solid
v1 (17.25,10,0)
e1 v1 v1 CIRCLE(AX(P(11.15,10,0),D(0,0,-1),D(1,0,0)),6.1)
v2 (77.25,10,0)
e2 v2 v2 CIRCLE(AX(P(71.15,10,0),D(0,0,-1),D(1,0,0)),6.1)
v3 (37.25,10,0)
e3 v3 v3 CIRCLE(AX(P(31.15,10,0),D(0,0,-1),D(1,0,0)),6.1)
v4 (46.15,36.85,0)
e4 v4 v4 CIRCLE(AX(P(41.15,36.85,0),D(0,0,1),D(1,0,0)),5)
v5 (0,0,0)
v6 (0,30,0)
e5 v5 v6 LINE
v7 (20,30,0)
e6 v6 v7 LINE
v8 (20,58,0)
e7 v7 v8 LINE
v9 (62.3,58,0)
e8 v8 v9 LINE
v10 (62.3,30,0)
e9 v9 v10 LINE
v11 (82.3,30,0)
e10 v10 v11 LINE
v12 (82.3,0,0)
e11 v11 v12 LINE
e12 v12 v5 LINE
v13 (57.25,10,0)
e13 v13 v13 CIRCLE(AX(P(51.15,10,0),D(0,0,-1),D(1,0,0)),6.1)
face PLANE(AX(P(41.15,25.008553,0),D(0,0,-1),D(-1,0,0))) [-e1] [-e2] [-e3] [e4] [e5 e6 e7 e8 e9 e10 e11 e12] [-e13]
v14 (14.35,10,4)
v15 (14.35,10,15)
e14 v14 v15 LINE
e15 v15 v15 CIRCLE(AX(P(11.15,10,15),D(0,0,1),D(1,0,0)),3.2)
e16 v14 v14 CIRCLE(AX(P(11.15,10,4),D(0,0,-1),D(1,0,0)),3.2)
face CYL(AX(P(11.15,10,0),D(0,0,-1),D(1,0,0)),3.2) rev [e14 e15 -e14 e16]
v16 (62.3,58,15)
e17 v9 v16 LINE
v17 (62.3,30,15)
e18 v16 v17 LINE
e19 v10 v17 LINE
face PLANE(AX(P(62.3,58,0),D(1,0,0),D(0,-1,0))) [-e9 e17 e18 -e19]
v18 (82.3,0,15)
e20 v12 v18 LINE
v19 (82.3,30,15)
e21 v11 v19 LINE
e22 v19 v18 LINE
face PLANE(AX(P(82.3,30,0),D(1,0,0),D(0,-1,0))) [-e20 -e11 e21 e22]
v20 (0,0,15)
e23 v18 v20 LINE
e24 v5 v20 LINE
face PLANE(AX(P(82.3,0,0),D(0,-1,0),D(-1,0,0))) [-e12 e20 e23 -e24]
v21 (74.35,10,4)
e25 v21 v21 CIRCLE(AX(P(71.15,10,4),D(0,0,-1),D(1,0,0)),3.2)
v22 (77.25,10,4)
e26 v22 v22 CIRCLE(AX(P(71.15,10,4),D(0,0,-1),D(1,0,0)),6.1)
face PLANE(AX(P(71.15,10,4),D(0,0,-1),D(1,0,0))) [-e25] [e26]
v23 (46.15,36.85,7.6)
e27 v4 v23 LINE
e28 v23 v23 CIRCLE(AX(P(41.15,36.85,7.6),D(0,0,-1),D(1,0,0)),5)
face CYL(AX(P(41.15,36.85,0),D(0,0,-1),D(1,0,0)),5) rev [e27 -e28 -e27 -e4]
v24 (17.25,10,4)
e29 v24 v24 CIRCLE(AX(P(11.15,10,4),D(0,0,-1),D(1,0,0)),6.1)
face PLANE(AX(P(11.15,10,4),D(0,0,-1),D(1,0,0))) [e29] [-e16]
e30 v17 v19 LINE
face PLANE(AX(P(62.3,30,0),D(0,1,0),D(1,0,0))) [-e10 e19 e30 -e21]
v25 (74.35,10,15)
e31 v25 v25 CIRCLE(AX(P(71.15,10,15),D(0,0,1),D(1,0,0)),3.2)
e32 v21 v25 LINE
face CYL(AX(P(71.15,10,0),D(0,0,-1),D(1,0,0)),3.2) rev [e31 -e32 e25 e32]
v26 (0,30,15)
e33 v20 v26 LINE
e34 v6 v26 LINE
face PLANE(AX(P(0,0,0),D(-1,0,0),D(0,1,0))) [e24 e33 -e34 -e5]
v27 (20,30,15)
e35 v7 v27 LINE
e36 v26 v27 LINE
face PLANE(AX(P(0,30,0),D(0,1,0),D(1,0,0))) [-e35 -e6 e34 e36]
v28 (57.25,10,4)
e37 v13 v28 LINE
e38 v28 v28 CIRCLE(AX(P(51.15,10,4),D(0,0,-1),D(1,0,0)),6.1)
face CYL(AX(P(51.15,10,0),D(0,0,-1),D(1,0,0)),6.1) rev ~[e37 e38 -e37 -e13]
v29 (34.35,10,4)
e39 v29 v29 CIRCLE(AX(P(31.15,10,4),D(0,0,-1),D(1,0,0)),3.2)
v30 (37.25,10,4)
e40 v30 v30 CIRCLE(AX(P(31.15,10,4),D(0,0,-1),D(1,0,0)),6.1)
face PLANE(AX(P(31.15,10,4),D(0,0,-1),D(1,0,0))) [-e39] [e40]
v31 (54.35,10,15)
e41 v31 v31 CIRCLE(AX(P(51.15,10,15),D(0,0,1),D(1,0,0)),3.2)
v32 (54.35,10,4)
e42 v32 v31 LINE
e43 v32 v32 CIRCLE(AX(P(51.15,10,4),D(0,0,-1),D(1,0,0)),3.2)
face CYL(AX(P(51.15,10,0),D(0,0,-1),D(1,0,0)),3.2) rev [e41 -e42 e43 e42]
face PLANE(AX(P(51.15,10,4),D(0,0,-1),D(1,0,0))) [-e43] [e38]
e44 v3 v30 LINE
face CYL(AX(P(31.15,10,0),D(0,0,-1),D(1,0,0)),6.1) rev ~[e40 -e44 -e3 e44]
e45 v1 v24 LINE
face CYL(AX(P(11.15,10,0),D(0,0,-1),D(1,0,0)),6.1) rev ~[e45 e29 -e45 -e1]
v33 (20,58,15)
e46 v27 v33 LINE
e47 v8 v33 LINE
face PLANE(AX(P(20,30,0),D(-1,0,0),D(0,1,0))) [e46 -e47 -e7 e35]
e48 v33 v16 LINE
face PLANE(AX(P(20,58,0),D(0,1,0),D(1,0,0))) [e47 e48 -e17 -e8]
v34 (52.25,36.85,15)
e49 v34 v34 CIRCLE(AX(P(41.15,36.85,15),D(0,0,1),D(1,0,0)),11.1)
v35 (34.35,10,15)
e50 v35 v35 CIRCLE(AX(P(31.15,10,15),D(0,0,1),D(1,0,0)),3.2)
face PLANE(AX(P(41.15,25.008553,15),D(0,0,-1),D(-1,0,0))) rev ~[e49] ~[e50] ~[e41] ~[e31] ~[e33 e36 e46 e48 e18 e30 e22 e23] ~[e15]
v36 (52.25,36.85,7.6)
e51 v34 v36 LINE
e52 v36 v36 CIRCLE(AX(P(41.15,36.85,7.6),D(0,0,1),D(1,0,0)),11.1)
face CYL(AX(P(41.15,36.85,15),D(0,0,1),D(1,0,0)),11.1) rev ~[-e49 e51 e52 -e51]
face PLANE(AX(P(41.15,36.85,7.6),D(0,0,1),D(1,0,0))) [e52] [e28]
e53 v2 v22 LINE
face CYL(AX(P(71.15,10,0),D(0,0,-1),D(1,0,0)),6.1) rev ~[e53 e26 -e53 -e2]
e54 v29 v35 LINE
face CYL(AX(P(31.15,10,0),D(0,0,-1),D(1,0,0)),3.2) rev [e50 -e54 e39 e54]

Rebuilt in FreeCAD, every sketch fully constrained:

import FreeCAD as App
import Part
import Sketcher
from FreeCAD import Vector
Q = App.Units.Quantity

doc = App.newDocument("Part")
params = doc.addObject("Spreadsheet::Sheet", "Params")
for row, (alias, value) in enumerate([
    ("sketch1_diameter", "10 mm"),
    ("sketch1_diameter2", "6.4 mm"),
    ("sketch1_width", "20 mm"),
    ("sketch1_height", "28 mm"),
    ("sketch1_height2", "30 mm"),
    ("pad1_length", "15 mm"),
    ("sketch2_diameter", "12.2 mm"),
    ("pocket1_length", "4 mm"),
    ("sketch3_diameter", "22.2 mm"),
    ("pocket2_length", "7.4 mm"),
], start=1):
    params.set(f"A{row}", alias)
    params.set(f"B{row}", "=" + value)
    params.setAlias(f"B{row}", alias)

body = doc.addObject("PartDesign::Body", "Body")

sketch1 = doc.addObject("Sketcher::SketchObject", "Sketch")
body.addObject(sketch1)
sketch1.AttachmentSupport = (doc.XY_Plane, [""])
sketch1.MapMode = "FlatFace"
sketch1.addGeometry(Part.LineSegment(Vector(20, 58, 0), Vector(20, 30, 0)), False)
sketch1.addGeometry(Part.LineSegment(Vector(20, 30, 0), Vector(0, 30, 0)), False)
sketch1.addGeometry(Part.LineSegment(Vector(0, 30, 0), Vector(0, 0, 0)), False)
sketch1.addGeometry(Part.LineSegment(Vector(0, 0, 0), Vector(82.3, 0, 0)), False)
sketch1.addGeometry(Part.LineSegment(Vector(82.3, 0, 0), Vector(82.3, 30, 0)), False)
sketch1.addGeometry(Part.LineSegment(Vector(82.3, 30, 0), Vector(62.3, 30, 0)), False)
sketch1.addGeometry(Part.LineSegment(Vector(62.3, 30, 0), Vector(62.3, 58, 0)), False)
sketch1.addGeometry(Part.LineSegment(Vector(62.3, 58, 0), Vector(20, 58, 0)), False)
sketch1.addGeometry(Part.Circle(Vector(71.2, 10, 0), Vector(0, 0, 1), 3.2), False)
sketch1.addGeometry(Part.Circle(Vector(51.1, 10, 0), Vector(0, 0, 1), 3.2), False)
sketch1.addGeometry(Part.Circle(Vector(31.1, 10, 0), Vector(0, 0, 1), 3.2), False)
sketch1.addGeometry(Part.Circle(Vector(11.2, 10, 0), Vector(0, 0, 1), 3.2), False)
sketch1.addGeometry(Part.Circle(Vector(41.1, 36.9, 0), Vector(0, 0, 1), 5), False)
sketch1.addConstraint(Sketcher.Constraint("Coincident", 0, 2, 1, 1))
sketch1.addConstraint(Sketcher.Constraint("Coincident", 1, 2, 2, 1))
sketch1.addConstraint(Sketcher.Constraint("Coincident", 2, 2, 3, 1))
sketch1.addConstraint(Sketcher.Constraint("Coincident", 3, 2, 4, 1))
sketch1.addConstraint(Sketcher.Constraint("Coincident", 4, 2, 5, 1))
sketch1.addConstraint(Sketcher.Constraint("Coincident", 5, 2, 6, 1))
sketch1.addConstraint(Sketcher.Constraint("Coincident", 6, 2, 7, 1))
sketch1.addConstraint(Sketcher.Constraint("Coincident", 7, 2, 0, 1))
sketch1.addConstraint(Sketcher.Constraint("Vertical", 0))
sketch1.addConstraint(Sketcher.Constraint("Horizontal", 1))
sketch1.addConstraint(Sketcher.Constraint("Vertical", 2))
sketch1.addConstraint(Sketcher.Constraint("Horizontal", 3))
sketch1.addConstraint(Sketcher.Constraint("Vertical", 4))
sketch1.addConstraint(Sketcher.Constraint("Horizontal", 5))
sketch1.addConstraint(Sketcher.Constraint("Vertical", 6))
sketch1.addConstraint(Sketcher.Constraint("Horizontal", 7))
sketch1.addConstraint(Sketcher.Constraint("Coincident", 2, 2, -1, 1))
sketch1.addConstraint(Sketcher.Constraint("Equal", 8, 9))
sketch1.addConstraint(Sketcher.Constraint("Equal", 9, 10))
sketch1.addConstraint(Sketcher.Constraint("Equal", 10, 11))
sketch1.addConstraint(Sketcher.Constraint("Horizontal", 8, 3, 9, 3))
sketch1.addConstraint(Sketcher.Constraint("Horizontal", 9, 3, 10, 3))
sketch1.addConstraint(Sketcher.Constraint("Horizontal", 10, 3, 11, 3))
sketch1.addConstraint(Sketcher.Constraint("Horizontal", 1, 2, 4, 2))
sketch1.addConstraint(Sketcher.Constraint("Equal", 1, 5))
sketch1.addConstraint(Sketcher.Constraint("Diameter", 12, Q("10 mm")))
sketch1.addConstraint(Sketcher.Constraint("Diameter", 8, Q("6.4 mm")))
sketch1.addConstraint(Sketcher.Constraint("DistanceX", 1, 2, 1, 1, Q("20 mm")))
sketch1.addConstraint(Sketcher.Constraint("DistanceY", 0, 2, 0, 1, Q("28 mm")))
sketch1.addConstraint(Sketcher.Constraint("DistanceY", 2, 2, 2, 1, Q("30 mm")))
sketch1.addConstraint(Sketcher.Constraint("DistanceX", 3, 1, 3, 2, Q("82.3 mm")))
sketch1.addConstraint(Sketcher.Constraint("DistanceY", -1, 1, 8, 3, Q("10 mm")))
sketch1.addConstraint(Sketcher.Constraint("DistanceX", 9, 3, 8, 3, Q("20 mm")))
sketch1.addConstraint(Sketcher.Constraint("DistanceX", 10, 3, 9, 3, Q("20 mm")))
sketch1.addConstraint(Sketcher.Constraint("DistanceX", 11, 3, 10, 3, Q("20 mm")))
sketch1.addConstraint(Sketcher.Constraint("DistanceX", 12, 3, 9, 3, Q("10 mm")))
sketch1.addConstraint(Sketcher.Constraint("DistanceX", -1, 1, 8, 3, Q("71.15 mm")))
sketch1.addConstraint(Sketcher.Constraint("DistanceY", -1, 1, 12, 3, Q("36.85 mm")))
sketch1.setExpression("Constraints[25]", "Params.sketch1_diameter")
sketch1.setExpression("Constraints[26]", "Params.sketch1_diameter2")
sketch1.setExpression("Constraints[27]", "Params.sketch1_width")
sketch1.setExpression("Constraints[28]", "Params.sketch1_height")
sketch1.setExpression("Constraints[29]", "Params.sketch1_height2")
pad1 = doc.addObject("PartDesign::Pad", "Pad")
body.addObject(pad1)
pad1.Profile = sketch1
pad1.setExpression("Length", "Params.pad1_length")

sketch2 = doc.addObject("Sketcher::SketchObject", "Sketch001")
body.addObject(sketch2)
sketch2.AttachmentSupport = (doc.XY_Plane, [""])
sketch2.MapMode = "FlatFace"
sketch2.addGeometry(Part.Circle(Vector(11, 10, 0), Vector(0, 0, 1), 6), False)
sketch2.addGeometry(Part.Circle(Vector(31, 10, 0), Vector(0, 0, 1), 6), False)
sketch2.addGeometry(Part.Circle(Vector(51, 10, 0), Vector(0, 0, 1), 6), False)
sketch2.addGeometry(Part.Circle(Vector(71, 10, 0), Vector(0, 0, 1), 6), False)
sketch2.addConstraint(Sketcher.Constraint("Equal", 0, 1))
sketch2.addConstraint(Sketcher.Constraint("Equal", 1, 2))
sketch2.addConstraint(Sketcher.Constraint("Equal", 2, 3))
sketch2.addConstraint(Sketcher.Constraint("Horizontal", 0, 3, 1, 3))
sketch2.addConstraint(Sketcher.Constraint("Horizontal", 1, 3, 2, 3))
sketch2.addConstraint(Sketcher.Constraint("Horizontal", 2, 3, 3, 3))
sketch2.addConstraint(Sketcher.Constraint("Diameter", 0, Q("12.2 mm")))
sketch2.addConstraint(Sketcher.Constraint("DistanceY", -1, 1, 0, 3, Q("10 mm")))
sketch2.addConstraint(Sketcher.Constraint("DistanceX", 0, 3, 1, 3, Q("20 mm")))
sketch2.addConstraint(Sketcher.Constraint("DistanceX", 1, 3, 2, 3, Q("20 mm")))
sketch2.addConstraint(Sketcher.Constraint("DistanceX", 2, 3, 3, 3, Q("20 mm")))
sketch2.addConstraint(Sketcher.Constraint("DistanceX", -1, 1, 0, 3, Q("11.15 mm")))
sketch2.setExpression("Constraints[6]", "Params.sketch2_diameter")
pocket1 = doc.addObject("PartDesign::Pocket", "Pocket")
body.addObject(pocket1)
pocket1.Profile = sketch2
pocket1.setExpression("Length", "Params.pocket1_length")
pocket1.Reversed = True

sketch3 = doc.addObject("Sketcher::SketchObject", "Sketch002")
body.addObject(sketch3)
sketch3.AttachmentSupport = (doc.XY_Plane, [""])
sketch3.MapMode = "FlatFace"
sketch3.AttachmentOffset = App.Placement(Vector(0, 0, 15), App.Rotation())
sketch3.addGeometry(Part.Circle(Vector(41, 37, 0), Vector(0, 0, 1), 11), False)
sketch3.addConstraint(Sketcher.Constraint("Diameter", 0, Q("22.2 mm")))
sketch3.addConstraint(Sketcher.Constraint("DistanceX", -1, 1, 0, 3, Q("41.15 mm")))
sketch3.addConstraint(Sketcher.Constraint("DistanceY", -1, 1, 0, 3, Q("36.85 mm")))
sketch3.setExpression("Constraints[0]", "Params.sketch3_diameter")
pocket2 = doc.addObject("PartDesign::Pocket", "Pocket001")
body.addObject(pocket2)
pocket2.Profile = sketch3
pocket2.setExpression("Length", "Params.pocket2_length")

doc.recompute()
